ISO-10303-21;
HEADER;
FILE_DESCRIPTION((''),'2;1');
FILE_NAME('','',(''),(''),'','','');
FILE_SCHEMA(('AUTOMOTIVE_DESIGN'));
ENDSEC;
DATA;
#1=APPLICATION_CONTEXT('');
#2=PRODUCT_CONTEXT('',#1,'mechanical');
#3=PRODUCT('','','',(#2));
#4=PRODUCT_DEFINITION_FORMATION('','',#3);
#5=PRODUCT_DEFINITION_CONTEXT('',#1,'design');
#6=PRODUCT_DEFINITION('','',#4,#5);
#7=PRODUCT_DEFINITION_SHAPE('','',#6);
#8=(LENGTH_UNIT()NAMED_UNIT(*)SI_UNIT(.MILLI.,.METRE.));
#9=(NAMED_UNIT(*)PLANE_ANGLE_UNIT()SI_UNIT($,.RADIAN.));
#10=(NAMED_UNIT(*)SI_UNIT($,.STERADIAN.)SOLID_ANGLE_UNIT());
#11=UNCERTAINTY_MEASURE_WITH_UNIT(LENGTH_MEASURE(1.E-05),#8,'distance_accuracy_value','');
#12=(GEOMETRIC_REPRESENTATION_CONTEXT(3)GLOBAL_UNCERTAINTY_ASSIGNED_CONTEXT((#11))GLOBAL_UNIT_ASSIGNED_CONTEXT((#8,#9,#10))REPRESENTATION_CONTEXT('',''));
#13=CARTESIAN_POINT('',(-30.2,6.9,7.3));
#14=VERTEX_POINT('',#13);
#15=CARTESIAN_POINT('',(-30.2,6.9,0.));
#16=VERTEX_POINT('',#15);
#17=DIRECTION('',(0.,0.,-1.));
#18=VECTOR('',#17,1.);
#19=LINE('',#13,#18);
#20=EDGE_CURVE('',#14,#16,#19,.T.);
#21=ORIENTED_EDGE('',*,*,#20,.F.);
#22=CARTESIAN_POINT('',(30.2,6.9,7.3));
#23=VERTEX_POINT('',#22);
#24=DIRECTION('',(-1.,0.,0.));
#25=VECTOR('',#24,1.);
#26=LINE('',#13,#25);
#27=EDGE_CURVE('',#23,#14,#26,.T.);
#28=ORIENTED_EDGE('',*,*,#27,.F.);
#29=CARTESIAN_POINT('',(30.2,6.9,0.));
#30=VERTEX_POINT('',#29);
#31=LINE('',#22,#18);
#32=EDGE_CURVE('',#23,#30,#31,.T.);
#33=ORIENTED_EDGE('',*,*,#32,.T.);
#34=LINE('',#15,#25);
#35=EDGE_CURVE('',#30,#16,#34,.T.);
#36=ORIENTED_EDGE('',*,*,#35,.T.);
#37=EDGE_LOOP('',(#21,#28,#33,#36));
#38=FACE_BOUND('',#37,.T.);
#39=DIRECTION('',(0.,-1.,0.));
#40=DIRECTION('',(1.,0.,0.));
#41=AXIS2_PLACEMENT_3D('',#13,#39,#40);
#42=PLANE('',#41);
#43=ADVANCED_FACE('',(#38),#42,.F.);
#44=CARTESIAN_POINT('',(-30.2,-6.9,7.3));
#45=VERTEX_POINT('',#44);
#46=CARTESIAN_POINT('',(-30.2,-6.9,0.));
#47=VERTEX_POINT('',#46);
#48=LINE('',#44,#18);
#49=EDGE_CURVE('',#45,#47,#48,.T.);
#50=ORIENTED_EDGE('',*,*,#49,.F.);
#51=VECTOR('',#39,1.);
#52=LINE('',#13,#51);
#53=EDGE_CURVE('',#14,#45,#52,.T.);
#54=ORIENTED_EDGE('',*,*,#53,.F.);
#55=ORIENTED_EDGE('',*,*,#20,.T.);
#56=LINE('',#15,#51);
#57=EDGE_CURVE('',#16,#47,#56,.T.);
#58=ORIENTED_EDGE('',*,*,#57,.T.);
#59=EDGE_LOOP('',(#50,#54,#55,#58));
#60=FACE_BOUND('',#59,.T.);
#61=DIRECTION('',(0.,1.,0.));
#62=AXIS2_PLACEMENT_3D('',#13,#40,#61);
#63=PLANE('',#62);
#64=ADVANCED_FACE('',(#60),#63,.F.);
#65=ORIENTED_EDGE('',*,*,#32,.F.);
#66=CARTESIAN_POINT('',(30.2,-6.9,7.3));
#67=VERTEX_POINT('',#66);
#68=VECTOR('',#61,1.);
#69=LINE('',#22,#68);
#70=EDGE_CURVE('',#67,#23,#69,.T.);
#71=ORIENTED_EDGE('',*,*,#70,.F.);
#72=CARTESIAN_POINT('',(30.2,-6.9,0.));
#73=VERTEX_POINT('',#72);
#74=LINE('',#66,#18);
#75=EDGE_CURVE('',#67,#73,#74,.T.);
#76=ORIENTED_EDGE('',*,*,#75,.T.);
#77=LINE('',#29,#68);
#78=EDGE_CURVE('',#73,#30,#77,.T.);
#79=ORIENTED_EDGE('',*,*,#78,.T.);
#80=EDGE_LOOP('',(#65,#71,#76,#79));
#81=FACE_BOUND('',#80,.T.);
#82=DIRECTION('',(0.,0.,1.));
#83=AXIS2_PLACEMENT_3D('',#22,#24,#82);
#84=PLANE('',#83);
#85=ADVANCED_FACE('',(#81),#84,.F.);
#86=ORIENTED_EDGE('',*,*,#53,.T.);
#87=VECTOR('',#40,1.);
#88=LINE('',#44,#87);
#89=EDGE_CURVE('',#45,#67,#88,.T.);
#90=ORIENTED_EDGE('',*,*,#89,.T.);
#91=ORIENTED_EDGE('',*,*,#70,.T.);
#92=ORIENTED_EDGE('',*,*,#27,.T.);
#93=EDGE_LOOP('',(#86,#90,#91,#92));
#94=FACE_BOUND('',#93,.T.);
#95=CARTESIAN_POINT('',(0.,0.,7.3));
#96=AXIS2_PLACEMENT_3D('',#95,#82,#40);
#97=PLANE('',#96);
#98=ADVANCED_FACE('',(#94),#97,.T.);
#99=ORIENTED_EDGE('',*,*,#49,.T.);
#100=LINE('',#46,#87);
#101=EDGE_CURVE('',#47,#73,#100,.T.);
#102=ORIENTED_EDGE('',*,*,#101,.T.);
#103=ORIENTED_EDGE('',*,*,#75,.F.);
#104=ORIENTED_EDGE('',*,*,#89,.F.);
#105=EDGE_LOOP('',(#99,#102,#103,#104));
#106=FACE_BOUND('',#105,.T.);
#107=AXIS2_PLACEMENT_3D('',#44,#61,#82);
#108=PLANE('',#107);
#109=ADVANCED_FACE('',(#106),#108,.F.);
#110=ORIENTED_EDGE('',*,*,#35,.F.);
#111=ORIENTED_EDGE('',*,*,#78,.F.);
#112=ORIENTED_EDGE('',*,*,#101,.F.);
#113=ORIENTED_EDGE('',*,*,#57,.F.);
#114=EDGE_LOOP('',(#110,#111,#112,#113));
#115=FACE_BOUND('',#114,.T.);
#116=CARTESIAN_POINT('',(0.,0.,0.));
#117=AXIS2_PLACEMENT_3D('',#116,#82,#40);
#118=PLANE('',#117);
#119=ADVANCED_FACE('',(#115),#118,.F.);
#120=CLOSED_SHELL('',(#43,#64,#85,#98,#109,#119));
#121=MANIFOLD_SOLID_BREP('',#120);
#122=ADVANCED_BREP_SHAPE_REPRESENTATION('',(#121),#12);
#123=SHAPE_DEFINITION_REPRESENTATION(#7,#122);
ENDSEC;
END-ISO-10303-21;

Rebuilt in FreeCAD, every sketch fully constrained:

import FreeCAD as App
import Part
import Sketcher

V = App.Vector


def add_polygon(sketch, points):
    """Adds a closed chain of lines whose ends are joined by coincident constraints."""
    first, n = sketch.GeometryCount, len(points)
    for a, b in zip(points, points[1:] + points[:1]):
        sketch.addGeometry(Part.LineSegment(App.Vector(*a, 0), App.Vector(*b, 0)), False)
    for i in range(n):
        sketch.addConstraint(Sketcher.Constraint("Coincident", first + i, 2, first + (i + 1) % n, 1))

doc = App.newDocument("Part")
params = doc.addObject("Spreadsheet::Sheet", "Params")
for row, (alias, value) in enumerate([
    ("sketch1_width", "60.4 mm"),
    ("sketch1_height", "13.8 mm"),
    ("pad1_length", "7.3 mm"),
], start=1):
    params.set(f"A{row}", alias)
    params.set(f"B{row}", "=" + value)
    params.setAlias(f"B{row}", alias)

body = doc.addObject("PartDesign::Body", "Body")

sketch1 = body.newObject("Sketcher::SketchObject", "Sketch")
sketch1.AttachmentSupport = (doc.getObject("XY_Plane"), [""])
sketch1.MapMode = "FlatFace"
add_polygon(sketch1, [(-30, 7), (-30, -7), (30, -7), (30, 7)])
sketch1.addConstraint(Sketcher.Constraint("Vertical", 0))
sketch1.addConstraint(Sketcher.Constraint("Horizontal", 1))
sketch1.addConstraint(Sketcher.Constraint("Vertical", 2))
sketch1.addConstraint(Sketcher.Constraint("Horizontal", 3))
sketch1.addConstraint(Sketcher.Constraint("Symmetric", 0, 2, 2, 2, -1, 1))
sketch1.addConstraint(Sketcher.Constraint("DistanceX", 1, 1, 1, 2, 60.4))
sketch1.addConstraint(Sketcher.Constraint("DistanceY", 0, 2, 0, 1, 13.8))
sketch1.setExpression("Constraints[9]", "Params.sketch1_width")
sketch1.setExpression("Constraints[10]", "Params.sketch1_height")
pad1 = body.newObject("PartDesign::Pad", "Pad")
pad1.Profile = sketch1
pad1.setExpression("Length", "Params.pad1_length")

doc.recompute()
